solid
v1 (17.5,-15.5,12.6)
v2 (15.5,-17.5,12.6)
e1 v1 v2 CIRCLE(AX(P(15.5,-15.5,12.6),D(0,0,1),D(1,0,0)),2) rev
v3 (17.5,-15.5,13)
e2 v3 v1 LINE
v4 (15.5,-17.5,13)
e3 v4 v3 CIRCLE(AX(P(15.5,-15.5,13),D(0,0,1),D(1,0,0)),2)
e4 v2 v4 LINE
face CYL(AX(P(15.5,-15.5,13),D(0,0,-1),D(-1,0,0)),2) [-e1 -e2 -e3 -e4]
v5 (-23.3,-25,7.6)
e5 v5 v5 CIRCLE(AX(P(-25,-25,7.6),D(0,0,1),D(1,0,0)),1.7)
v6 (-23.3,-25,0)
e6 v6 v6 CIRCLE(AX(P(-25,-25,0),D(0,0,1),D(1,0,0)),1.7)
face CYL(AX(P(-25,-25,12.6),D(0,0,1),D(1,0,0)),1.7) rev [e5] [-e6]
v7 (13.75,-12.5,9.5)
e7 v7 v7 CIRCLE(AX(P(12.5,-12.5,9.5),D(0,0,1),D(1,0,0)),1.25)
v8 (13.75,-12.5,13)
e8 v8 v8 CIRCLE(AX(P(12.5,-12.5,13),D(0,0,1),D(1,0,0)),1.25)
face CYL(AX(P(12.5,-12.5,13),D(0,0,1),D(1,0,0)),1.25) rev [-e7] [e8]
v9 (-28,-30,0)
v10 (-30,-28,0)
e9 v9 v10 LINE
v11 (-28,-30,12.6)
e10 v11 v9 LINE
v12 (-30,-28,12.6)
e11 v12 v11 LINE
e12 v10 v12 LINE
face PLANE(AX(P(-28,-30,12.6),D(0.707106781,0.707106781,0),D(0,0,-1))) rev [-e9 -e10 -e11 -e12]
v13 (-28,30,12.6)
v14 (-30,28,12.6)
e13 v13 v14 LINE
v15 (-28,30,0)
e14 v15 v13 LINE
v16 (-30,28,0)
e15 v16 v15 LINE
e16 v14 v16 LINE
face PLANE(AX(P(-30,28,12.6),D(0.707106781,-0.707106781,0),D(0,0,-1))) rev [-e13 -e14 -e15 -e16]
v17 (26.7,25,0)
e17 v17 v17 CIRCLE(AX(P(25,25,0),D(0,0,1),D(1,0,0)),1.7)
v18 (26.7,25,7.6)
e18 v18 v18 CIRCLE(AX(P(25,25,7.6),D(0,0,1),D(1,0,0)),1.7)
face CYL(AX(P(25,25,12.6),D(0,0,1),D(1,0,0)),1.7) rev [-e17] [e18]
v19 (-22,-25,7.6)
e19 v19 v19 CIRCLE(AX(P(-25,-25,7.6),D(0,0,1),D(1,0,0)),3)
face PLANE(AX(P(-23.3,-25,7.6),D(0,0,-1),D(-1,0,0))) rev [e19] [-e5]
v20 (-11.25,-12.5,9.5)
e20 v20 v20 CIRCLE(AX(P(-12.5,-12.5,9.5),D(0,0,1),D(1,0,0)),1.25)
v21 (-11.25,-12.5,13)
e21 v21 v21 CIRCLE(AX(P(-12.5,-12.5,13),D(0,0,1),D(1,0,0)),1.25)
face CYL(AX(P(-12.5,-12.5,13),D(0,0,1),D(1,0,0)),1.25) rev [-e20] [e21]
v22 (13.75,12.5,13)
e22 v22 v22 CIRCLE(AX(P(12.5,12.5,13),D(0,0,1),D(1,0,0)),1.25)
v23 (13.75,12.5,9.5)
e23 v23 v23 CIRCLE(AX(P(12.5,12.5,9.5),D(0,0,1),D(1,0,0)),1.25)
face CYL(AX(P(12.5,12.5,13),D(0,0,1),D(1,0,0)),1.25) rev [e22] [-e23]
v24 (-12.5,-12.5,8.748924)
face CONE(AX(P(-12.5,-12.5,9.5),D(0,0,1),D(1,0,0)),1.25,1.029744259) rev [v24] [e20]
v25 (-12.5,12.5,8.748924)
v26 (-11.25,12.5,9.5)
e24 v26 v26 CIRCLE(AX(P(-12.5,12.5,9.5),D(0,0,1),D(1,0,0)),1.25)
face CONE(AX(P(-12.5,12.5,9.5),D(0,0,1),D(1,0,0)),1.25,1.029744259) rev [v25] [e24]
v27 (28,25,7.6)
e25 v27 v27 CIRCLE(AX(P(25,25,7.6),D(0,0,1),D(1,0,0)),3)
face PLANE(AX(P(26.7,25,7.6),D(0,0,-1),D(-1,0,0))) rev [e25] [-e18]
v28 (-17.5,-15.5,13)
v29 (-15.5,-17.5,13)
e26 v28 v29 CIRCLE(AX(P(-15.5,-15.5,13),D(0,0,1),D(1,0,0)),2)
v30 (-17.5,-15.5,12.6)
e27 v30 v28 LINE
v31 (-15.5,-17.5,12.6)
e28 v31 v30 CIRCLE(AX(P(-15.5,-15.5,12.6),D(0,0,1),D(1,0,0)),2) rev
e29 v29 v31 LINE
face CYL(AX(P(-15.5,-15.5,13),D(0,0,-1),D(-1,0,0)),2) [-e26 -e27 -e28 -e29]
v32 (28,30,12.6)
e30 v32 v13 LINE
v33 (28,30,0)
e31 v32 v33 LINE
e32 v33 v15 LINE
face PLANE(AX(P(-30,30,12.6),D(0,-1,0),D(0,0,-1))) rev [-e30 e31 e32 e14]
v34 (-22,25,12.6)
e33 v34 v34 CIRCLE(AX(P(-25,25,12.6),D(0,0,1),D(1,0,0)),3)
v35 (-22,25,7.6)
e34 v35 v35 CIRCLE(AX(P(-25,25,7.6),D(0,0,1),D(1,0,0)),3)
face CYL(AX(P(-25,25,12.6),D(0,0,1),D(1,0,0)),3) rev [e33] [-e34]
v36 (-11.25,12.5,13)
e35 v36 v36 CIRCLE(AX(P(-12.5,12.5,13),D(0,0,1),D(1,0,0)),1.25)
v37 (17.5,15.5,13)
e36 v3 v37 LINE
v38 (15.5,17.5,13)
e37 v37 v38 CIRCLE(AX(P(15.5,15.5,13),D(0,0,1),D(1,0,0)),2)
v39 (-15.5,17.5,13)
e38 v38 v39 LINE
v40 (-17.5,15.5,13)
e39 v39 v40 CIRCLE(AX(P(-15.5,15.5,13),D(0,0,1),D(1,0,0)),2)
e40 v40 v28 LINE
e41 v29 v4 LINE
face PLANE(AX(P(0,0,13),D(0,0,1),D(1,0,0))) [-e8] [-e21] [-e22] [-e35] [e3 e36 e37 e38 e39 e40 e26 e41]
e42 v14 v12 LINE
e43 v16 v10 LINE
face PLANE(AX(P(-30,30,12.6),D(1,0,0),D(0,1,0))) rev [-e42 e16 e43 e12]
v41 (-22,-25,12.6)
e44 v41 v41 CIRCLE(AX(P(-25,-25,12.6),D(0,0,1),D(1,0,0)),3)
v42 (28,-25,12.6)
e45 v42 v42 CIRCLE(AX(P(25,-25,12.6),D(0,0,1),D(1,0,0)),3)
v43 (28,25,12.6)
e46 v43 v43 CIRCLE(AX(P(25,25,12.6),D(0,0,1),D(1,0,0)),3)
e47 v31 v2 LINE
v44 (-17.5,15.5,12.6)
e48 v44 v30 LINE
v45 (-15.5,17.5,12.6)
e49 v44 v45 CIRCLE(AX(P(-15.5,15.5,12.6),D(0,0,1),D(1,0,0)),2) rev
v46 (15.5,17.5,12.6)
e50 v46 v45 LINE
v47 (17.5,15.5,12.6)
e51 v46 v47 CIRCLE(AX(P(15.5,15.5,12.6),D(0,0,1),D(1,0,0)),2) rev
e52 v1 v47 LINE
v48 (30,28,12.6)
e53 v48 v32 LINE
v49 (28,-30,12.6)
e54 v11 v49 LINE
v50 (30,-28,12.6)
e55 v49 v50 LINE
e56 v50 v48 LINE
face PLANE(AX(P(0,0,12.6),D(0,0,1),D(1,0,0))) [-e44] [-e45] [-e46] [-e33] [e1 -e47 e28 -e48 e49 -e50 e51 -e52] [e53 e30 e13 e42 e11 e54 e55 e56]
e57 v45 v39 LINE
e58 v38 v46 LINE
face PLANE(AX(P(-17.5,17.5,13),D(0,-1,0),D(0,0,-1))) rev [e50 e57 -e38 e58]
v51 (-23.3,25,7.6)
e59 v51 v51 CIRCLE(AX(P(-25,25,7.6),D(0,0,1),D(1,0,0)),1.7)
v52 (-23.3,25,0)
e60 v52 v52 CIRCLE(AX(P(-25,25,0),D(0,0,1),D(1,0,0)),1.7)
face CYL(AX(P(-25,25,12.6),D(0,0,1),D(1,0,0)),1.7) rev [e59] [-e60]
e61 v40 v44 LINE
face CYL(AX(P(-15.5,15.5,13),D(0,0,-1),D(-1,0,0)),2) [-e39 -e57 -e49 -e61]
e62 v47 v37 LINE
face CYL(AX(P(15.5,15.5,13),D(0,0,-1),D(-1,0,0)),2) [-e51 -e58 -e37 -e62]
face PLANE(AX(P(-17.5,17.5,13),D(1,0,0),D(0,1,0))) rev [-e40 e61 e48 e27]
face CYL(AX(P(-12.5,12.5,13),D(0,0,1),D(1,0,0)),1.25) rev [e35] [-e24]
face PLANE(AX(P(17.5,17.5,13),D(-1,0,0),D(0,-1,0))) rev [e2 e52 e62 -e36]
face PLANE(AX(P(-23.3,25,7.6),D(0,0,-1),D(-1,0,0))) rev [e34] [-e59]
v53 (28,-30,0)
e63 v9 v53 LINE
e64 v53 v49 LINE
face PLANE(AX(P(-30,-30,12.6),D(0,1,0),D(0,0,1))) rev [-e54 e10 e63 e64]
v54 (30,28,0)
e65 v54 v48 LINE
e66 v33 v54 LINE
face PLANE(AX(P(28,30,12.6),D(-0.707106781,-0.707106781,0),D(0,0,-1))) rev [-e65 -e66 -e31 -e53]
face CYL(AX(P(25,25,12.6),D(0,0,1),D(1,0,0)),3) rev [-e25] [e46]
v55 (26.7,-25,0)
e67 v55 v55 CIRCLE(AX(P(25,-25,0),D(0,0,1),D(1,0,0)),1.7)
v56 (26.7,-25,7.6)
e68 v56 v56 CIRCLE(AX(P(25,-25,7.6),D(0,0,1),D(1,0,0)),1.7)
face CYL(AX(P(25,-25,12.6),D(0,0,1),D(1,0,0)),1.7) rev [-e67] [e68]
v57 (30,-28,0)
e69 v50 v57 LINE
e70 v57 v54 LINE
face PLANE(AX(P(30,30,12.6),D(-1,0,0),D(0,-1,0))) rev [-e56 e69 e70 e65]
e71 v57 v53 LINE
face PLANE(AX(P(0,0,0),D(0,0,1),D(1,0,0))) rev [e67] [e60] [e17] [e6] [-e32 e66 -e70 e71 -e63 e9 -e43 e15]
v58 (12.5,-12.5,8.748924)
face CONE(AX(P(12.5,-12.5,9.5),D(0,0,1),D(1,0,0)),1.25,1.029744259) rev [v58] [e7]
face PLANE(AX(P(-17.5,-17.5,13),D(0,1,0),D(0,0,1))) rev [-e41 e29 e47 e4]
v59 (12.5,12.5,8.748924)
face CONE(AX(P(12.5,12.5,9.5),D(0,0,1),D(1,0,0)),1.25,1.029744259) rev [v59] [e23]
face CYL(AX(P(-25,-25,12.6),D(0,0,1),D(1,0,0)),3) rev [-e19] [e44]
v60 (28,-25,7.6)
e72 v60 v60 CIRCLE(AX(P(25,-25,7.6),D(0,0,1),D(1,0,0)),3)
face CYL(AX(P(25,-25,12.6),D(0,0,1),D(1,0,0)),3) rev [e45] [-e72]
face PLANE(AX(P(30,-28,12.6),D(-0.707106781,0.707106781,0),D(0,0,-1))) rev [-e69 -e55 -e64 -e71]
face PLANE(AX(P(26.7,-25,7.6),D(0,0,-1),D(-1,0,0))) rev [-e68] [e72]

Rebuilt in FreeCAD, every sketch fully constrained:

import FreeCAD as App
import Part
import Sketcher


def edges_at(feature, points):
    """Names of the edges that pass closest to the given points."""
    edges = feature.Shape.Edges
    near = lambda p: min(range(len(edges)), key=lambda i: edges[i].distToShape(Part.Vertex(*p))[0])
    return sorted({f"Edge{near(p) + 1}" for p in points})


def add_polygon(sketch, points):
    """Adds a closed chain of lines whose ends are joined by coincident constraints."""
    first, n = sketch.GeometryCount, len(points)
    for a, b in zip(points, points[1:] + points[:1]):
        sketch.addGeometry(Part.LineSegment(App.Vector(*a, 0), App.Vector(*b, 0)), False)
    for i in range(n):
        sketch.addConstraint(Sketcher.Constraint("Coincident", first + i, 2, first + (i + 1) % n, 1))

doc = App.newDocument("Part")
params = doc.addObject("Spreadsheet::Sheet", "Params")
for row, (alias, value) in enumerate([
    ("sketch1_width", "60 mm"),
    ("pad1_length", "12.6 mm"),
    ("chamfer_size", "2 mm"),
    ("sketch2_width", "35 mm"),
    ("pad2_length", "0.4 mm"),
    ("fillet_radius", "2 mm"),
    ("sketch3_diameter", "3.4 mm"),
    ("hole_diameter", "3.4 mm"),
    ("hole_cbore_diameter", "6 mm"),
    ("hole_cbore_depth", "5 mm"),
    ("sketch4_diameter", "2.5 mm"),
    ("hole2_diameter", "2.5 mm"),
    ("hole2_depth", "3.5 mm"),
], start=1):
    params.set(f"A{row}", alias)
    params.set(f"B{row}", "=" + value)
    params.setAlias(f"B{row}", alias)

body = doc.addObject("PartDesign::Body", "Body")

# Sketch on XY plane
sketch1 = doc.addObject("Sketcher::SketchObject", "Sketch")
body.addObject(sketch1)
sketch1.AttachmentSupport = (doc.XY_Plane, [""])
sketch1.MapMode = "FlatFace"
add_polygon(sketch1, [(-30, 30), (-30, -30), (30, -30), (30, 30)])  # lines 0-3
sketch1.addConstraint([
    Sketcher.Constraint("Vertical", 0),
    Sketcher.Constraint("Horizontal", 1),
    Sketcher.Constraint("Vertical", 2),
    Sketcher.Constraint("Horizontal", 3),
    Sketcher.Constraint("Symmetric", 0, 2, 2, 2, -1, 1),
    Sketcher.Constraint("Equal", 3, 0),
    Sketcher.Constraint("DistanceX", 1, 1, 1, 2, 60.0),
])
sketch1.setExpression("Constraints[10]", "Params.sketch1_width")
pad1 = doc.addObject("PartDesign::Pad", "Pad")
body.addObject(pad1)
pad1.Profile = sketch1
pad1.setExpression("Length", "Params.pad1_length")
doc.recompute()

chamfer = doc.addObject("PartDesign::Chamfer", "Chamfer")
body.addObject(chamfer)
chamfer.Base = (pad1, edges_at(pad1, [
    (30, -30, 6.3),
    (-30, -30, 6.3),
    (-30, 30, 6.3),
    (30, 30, 6.3),
]))
chamfer.setExpression("Size", "Params.chamfer_size")

# Sketch on XY plane
sketch2 = doc.addObject("Sketcher::SketchObject", "Sketch001")
body.addObject(sketch2)
sketch2.AttachmentSupport = (doc.XY_Plane, [""])
sketch2.MapMode = "FlatFace"
sketch2.AttachmentOffset = App.Placement(App.Vector(0, 0, 12.6), App.Rotation())
add_polygon(sketch2, [(-17.5, 17.5), (-17.5, -17.5), (17.5, -17.5), (17.5, 17.5)])  # lines 0-3
sketch2.addConstraint([
    Sketcher.Constraint("Vertical", 0),
    Sketcher.Constraint("Horizontal", 1),
    Sketcher.Constraint("Vertical", 2),
    Sketcher.Constraint("Horizontal", 3),
    Sketcher.Constraint("Symmetric", 0, 2, 2, 2, -1, 1),
    Sketcher.Constraint("Equal", 3, 0),
    Sketcher.Constraint("DistanceX", 1, 1, 1, 2, 35.0),
])
sketch2.setExpression("Constraints[10]", "Params.sketch2_width")
pad2 = doc.addObject("PartDesign::Pad", "Pad001")
body.addObject(pad2)
pad2.Profile = sketch2
pad2.setExpression("Length", "Params.pad2_length")
doc.recompute()

fillet = doc.addObject("PartDesign::Fillet", "Fillet")
body.addObject(fillet)
fillet.Base = (pad2, edges_at(pad2, [
    (17.5, -17.5, 12.8),
    (17.5, 17.5, 12.8),
    (-17.5, 17.5, 12.8),
    (-17.5, -17.5, 12.8),
]))
fillet.setExpression("Radius", "Params.fillet_radius")

# Sketch on XY plane
sketch3 = doc.addObject("Sketcher::SketchObject", "Sketch002")
body.addObject(sketch3)
sketch3.AttachmentSupport = (doc.XY_Plane, [""])
sketch3.MapMode = "FlatFace"
sketch3.AttachmentOffset = App.Placement(App.Vector(0, 0, 12.6), App.Rotation())
sketch3.addGeometry([
    Part.Circle(App.Vector(-25, 25, 0), App.Vector(0, 0, 1), 1.7),
    Part.Circle(App.Vector(25, 25, 0), App.Vector(0, 0, 1), 1.7),
    Part.Circle(App.Vector(-25, -25, 0), App.Vector(0, 0, 1), 1.7),
    Part.Circle(App.Vector(25, -25, 0), App.Vector(0, 0, 1), 1.7),
], False)
sketch3.addConstraint([
    Sketcher.Constraint("Equal", 0, 1),
    Sketcher.Constraint("Equal", 1, 2),
    Sketcher.Constraint("Equal", 2, 3),
    Sketcher.Constraint("Symmetric", 1, 3, 2, 3, -1, 1),
    Sketcher.Constraint("Symmetric", 0, 3, 3, 3, -1, 1),
    Sketcher.Constraint("Symmetric", 0, 3, 1, 3, -2),
    Sketcher.Constraint("Diameter", 0, 3.4),
    Sketcher.Constraint("DistanceX", 0, 3, -1, 1, 25.0),
    Sketcher.Constraint("DistanceY", -1, 1, 0, 3, 25.0),
])
sketch3.setExpression("Constraints[6]", "Params.sketch3_diameter")
doc.recompute()
hole = doc.addObject("PartDesign::Hole", "Hole")
body.addObject(hole)
hole.Profile = sketch3
hole.ThreadType = "None"
hole.setExpression("Diameter", "Params.hole_diameter")
hole.DepthType = "ThroughAll"
hole.HoleCutType = "Counterbore"
hole.setExpression("HoleCutDiameter", "Params.hole_cbore_diameter")
hole.setExpression("HoleCutDepth", "Params.hole_cbore_depth")

# Sketch on XY plane
sketch4 = doc.addObject("Sketcher::SketchObject", "Sketch003")
body.addObject(sketch4)
sketch4.AttachmentSupport = (doc.XY_Plane, [""])
sketch4.MapMode = "FlatFace"
sketch4.AttachmentOffset = App.Placement(App.Vector(0, 0, 13), App.Rotation())
sketch4.addGeometry([
    Part.Circle(App.Vector(-12.5, 12.5, 0), App.Vector(0, 0, 1), 1.25),
    Part.Circle(App.Vector(12.5, 12.5, 0), App.Vector(0, 0, 1), 1.25),
    Part.Circle(App.Vector(12.5, -12.5, 0), App.Vector(0, 0, 1), 1.25),
    Part.Circle(App.Vector(-12.5, -12.5, 0), App.Vector(0, 0, 1), 1.25),
], False)
sketch4.addConstraint([
    Sketcher.Constraint("Equal", 0, 1),
    Sketcher.Constraint("Equal", 1, 2),
    Sketcher.Constraint("Equal", 2, 3),
    Sketcher.Constraint("Symmetric", 0, 3, 2, 3, -1, 1),
    Sketcher.Constraint("Symmetric", 1, 3, 3, 3, -1, 1),
    Sketcher.Constraint("Symmetric", 0, 3, 1, 3, -2),
    Sketcher.Constraint("Diameter", 0, 2.5),
    Sketcher.Constraint("DistanceX", 0, 3, 1, 3, 25.0),
    Sketcher.Constraint("DistanceY", 2, 3, 1, 3, 25.0),
])
sketch4.setExpression("Constraints[6]", "Params.sketch4_diameter")
doc.recompute()
hole2 = doc.addObject("PartDesign::Hole", "Hole001")
body.addObject(hole2)
hole2.Profile = sketch4
hole2.ThreadType = "None"
hole2.setExpression("Diameter", "Params.hole2_diameter")
hole2.DepthType = "Dimension"
hole2.setExpression("Depth", "Params.hole2_depth")
hole2.DrillPoint = "Angled"
hole2.DrillPointAngle = 118

doc.recompute()
